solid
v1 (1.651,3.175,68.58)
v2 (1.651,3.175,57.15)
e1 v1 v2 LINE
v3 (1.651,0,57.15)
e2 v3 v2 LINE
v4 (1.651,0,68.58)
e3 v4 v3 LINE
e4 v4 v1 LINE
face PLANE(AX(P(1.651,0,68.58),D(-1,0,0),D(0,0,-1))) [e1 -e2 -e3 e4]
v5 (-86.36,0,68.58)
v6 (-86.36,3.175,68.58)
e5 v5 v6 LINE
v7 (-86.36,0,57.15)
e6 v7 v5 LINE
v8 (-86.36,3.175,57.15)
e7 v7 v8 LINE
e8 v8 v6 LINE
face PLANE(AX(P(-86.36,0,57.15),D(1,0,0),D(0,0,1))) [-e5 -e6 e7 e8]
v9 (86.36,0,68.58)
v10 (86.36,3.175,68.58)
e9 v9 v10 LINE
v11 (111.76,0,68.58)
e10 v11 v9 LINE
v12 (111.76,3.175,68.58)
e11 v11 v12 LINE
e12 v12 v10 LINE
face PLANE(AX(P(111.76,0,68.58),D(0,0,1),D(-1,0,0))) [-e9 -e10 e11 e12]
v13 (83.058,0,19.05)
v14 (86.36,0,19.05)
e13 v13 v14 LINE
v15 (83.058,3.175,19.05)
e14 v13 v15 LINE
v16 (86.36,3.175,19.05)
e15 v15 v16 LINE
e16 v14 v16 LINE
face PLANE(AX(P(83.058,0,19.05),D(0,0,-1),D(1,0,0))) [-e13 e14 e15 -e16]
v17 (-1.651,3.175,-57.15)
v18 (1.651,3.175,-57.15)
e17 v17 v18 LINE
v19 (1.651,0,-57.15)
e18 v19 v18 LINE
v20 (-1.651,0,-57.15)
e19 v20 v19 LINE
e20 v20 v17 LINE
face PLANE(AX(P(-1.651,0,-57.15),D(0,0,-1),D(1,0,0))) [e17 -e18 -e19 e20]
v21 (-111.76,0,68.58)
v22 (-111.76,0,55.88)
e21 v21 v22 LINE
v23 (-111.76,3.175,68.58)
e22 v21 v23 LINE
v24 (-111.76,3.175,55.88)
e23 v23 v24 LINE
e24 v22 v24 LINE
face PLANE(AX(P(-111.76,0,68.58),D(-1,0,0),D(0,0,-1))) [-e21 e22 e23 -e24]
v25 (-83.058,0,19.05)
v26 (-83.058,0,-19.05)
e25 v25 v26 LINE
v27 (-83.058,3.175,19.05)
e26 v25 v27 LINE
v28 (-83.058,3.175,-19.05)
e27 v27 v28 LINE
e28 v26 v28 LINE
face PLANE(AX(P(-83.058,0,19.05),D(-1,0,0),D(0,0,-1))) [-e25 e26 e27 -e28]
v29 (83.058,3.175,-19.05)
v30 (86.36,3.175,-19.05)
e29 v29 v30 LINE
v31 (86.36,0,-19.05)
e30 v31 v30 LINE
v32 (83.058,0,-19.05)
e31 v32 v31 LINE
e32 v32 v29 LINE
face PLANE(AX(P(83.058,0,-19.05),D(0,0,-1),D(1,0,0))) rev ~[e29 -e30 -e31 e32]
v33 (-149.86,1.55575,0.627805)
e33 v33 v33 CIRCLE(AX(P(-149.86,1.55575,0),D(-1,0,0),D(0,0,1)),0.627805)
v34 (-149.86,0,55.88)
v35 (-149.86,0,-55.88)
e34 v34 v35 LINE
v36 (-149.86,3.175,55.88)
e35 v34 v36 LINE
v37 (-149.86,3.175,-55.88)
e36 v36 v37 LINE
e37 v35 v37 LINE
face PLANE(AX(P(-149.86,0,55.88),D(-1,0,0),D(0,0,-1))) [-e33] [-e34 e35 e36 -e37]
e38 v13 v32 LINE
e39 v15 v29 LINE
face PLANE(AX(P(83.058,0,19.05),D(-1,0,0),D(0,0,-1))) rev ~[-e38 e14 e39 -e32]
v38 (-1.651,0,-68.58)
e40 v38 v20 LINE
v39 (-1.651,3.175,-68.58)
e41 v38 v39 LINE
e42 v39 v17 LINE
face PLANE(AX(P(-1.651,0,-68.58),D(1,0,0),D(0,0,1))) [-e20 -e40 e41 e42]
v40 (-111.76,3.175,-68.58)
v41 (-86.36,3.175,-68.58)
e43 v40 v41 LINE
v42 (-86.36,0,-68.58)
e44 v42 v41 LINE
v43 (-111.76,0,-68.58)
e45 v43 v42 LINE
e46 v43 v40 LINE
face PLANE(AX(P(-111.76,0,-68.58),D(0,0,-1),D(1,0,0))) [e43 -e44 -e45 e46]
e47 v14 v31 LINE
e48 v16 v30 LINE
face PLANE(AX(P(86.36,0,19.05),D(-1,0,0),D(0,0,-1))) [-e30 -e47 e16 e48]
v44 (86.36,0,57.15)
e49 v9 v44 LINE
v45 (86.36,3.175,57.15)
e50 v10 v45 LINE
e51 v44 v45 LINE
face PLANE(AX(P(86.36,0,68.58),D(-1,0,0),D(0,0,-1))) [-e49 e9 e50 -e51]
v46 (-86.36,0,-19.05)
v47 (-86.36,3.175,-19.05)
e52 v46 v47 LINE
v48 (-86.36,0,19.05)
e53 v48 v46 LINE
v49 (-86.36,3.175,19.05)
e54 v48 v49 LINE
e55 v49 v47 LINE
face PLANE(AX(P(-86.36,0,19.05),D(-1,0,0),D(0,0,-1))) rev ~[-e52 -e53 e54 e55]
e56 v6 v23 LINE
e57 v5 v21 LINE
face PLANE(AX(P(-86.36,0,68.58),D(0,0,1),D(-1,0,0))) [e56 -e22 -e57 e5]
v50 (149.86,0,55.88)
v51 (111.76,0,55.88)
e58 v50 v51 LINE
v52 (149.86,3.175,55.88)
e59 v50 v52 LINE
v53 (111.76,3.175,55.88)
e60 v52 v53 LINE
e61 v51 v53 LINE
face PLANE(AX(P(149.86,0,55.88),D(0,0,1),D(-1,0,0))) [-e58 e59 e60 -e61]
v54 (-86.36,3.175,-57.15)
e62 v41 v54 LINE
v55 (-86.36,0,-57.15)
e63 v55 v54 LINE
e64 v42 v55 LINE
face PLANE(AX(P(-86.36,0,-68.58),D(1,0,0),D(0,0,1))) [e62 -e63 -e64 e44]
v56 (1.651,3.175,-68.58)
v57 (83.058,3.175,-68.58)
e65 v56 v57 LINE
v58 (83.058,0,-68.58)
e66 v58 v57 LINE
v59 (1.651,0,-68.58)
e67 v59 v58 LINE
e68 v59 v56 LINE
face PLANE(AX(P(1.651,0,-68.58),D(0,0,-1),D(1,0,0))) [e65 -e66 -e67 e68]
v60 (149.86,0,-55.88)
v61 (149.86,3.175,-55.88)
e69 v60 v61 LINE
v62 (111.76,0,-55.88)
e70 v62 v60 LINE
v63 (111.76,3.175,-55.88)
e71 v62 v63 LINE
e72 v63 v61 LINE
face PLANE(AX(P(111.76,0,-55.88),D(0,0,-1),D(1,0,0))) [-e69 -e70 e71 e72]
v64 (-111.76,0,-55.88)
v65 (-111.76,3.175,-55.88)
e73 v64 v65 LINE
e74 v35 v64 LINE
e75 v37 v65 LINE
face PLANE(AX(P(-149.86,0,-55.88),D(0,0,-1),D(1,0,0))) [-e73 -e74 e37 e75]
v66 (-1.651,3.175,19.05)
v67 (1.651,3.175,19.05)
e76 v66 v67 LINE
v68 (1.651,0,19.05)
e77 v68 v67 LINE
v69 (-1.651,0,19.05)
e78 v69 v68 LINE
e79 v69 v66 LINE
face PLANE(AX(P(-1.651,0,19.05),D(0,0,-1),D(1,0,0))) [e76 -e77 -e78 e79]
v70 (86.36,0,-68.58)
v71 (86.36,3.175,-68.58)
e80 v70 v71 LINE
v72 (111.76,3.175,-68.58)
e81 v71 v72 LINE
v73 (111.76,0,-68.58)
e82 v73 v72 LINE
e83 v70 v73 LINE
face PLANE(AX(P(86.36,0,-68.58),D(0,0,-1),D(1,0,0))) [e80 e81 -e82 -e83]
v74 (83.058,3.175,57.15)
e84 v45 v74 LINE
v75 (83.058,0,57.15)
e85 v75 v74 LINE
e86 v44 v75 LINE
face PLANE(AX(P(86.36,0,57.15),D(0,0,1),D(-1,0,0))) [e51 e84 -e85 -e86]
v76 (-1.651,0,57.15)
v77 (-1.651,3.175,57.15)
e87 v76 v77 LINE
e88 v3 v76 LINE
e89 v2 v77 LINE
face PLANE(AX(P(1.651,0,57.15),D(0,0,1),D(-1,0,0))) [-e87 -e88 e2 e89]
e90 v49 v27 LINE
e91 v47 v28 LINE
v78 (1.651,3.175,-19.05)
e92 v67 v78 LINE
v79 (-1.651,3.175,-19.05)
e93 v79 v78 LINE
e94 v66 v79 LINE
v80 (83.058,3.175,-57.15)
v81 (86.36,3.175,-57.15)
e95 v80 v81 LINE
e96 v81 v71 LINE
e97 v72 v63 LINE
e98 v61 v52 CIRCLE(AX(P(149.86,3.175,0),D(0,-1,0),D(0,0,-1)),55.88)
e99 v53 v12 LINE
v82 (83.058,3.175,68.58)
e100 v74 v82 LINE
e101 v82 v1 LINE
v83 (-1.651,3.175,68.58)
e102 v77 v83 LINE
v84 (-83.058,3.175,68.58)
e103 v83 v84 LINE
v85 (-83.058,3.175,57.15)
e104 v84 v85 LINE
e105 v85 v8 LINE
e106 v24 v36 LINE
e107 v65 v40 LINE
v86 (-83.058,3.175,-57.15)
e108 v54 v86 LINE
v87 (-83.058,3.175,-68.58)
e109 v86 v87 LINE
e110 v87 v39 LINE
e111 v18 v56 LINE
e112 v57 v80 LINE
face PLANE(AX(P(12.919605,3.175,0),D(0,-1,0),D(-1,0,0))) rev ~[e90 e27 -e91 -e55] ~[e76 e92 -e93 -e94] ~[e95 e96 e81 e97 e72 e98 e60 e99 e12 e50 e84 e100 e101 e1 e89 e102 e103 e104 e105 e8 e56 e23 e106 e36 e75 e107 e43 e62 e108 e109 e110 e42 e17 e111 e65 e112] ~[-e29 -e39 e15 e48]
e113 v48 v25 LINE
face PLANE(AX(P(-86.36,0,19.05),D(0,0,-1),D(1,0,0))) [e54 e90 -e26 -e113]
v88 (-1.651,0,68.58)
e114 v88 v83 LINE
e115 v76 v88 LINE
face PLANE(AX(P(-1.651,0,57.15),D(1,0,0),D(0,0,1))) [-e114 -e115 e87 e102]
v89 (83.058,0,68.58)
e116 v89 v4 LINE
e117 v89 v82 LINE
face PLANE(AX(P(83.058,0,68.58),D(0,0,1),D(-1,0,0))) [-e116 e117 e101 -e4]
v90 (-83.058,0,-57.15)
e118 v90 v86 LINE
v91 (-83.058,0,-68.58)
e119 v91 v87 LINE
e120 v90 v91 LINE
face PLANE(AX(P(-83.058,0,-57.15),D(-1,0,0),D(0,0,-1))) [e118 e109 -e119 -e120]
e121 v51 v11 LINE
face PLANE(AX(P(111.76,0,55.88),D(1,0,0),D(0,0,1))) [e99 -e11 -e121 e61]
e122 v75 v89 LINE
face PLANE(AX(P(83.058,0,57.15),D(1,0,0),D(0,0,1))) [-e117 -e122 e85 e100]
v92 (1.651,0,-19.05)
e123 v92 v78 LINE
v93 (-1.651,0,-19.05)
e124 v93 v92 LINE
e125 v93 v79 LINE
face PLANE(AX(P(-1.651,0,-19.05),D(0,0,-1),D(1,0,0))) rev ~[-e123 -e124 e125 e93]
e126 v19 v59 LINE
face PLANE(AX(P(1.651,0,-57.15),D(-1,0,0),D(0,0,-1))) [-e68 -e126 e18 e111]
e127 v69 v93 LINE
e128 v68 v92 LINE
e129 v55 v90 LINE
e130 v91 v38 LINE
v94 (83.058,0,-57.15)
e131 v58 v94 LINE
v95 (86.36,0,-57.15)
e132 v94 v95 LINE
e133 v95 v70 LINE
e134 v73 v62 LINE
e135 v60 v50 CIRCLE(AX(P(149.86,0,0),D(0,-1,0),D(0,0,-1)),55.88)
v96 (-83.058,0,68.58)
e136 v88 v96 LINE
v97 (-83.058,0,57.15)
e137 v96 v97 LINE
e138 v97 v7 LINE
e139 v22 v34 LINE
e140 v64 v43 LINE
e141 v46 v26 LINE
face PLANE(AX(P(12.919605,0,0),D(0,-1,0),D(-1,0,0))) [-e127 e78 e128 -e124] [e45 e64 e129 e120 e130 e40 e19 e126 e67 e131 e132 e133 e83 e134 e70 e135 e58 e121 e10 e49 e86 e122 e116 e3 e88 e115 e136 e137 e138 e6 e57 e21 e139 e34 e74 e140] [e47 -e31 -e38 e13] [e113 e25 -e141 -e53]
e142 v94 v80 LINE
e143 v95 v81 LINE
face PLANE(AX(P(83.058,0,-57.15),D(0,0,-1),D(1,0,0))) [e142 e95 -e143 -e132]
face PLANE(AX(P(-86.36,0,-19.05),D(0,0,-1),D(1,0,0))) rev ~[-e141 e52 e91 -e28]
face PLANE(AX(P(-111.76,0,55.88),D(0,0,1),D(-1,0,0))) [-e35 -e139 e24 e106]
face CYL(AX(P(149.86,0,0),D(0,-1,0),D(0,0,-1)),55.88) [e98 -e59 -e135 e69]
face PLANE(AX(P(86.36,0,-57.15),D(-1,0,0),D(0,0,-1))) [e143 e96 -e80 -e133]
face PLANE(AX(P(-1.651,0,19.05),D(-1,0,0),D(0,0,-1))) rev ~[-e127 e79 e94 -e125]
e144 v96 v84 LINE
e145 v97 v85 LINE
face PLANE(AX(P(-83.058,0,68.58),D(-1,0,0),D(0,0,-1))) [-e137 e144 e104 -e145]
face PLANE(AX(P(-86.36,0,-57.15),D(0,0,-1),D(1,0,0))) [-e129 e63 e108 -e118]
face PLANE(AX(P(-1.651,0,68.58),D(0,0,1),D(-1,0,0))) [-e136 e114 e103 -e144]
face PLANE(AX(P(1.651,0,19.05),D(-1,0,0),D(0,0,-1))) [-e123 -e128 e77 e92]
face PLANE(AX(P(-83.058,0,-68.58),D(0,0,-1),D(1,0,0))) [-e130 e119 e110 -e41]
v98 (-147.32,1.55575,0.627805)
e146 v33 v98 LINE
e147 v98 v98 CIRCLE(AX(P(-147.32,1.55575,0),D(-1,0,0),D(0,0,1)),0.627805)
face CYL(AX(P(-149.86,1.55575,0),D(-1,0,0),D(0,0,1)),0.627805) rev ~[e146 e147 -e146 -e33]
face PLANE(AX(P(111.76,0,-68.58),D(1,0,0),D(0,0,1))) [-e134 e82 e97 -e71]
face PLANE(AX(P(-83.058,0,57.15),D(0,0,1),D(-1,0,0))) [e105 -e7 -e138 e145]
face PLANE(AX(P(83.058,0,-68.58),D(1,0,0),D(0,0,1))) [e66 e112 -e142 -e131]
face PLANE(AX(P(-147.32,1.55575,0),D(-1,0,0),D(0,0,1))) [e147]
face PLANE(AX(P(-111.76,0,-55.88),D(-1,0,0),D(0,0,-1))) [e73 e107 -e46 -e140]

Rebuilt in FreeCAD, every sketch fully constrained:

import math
import FreeCAD as App
import Part
import Sketcher

V = App.Vector
Q = App.Units.Quantity

doc = App.newDocument("Part")
body = doc.addObject("PartDesign::Body", "Body")

# Sketch on XZ plane
sketch1 = body.newObject("Sketcher::SketchObject", "Sketch")
sketch1.AttachmentSupport = (doc.getObject("XZ_Plane"), [""])
sketch1.MapMode = "FlatFace"
sketch1.addGeometry([
    Part.LineSegment(V(-149.9, -55.9, 0), V(-149.9, 55.9, 0)),  # 0
    Part.LineSegment(V(-149.9, 55.9, 0), V(-111.8, 55.9, 0)),  # 1
    Part.LineSegment(V(-111.8, 55.9, 0), V(-111.8, 68.6, 0)),  # 2
    Part.LineSegment(V(-111.8, 68.6, 0), V(-86.4, 68.6, 0)),  # 3
    Part.LineSegment(V(-86.4, 68.6, 0), V(-86.4, 57.1, 0)),  # 4
    Part.LineSegment(V(-86.4, 57.1, 0), V(-83.1, 57.1, 0)),  # 5
    Part.LineSegment(V(-83.1, 57.1, 0), V(-83.1, 68.6, 0)),  # 6
    Part.LineSegment(V(-83.1, 68.6, 0), V(-1.7, 68.6, 0)),  # 7
    Part.LineSegment(V(-1.7, 68.6, 0), V(-1.7, 57.1, 0)),  # 8
    Part.LineSegment(V(-1.7, 57.1, 0), V(1.7, 57.1, 0)),  # 9
    Part.LineSegment(V(1.7, 57.1, 0), V(1.7, 68.6, 0)),  # 10
    Part.LineSegment(V(1.7, 68.6, 0), V(83.1, 68.6, 0)),  # 11
    Part.LineSegment(V(83.1, 68.6, 0), V(83.1, 57.1, 0)),  # 12
    Part.LineSegment(V(83.1, 57.1, 0), V(86.4, 57.1, 0)),  # 13
    Part.LineSegment(V(86.4, 57.1, 0), V(86.4, 68.6, 0)),  # 14
    Part.LineSegment(V(86.4, 68.6, 0), V(111.8, 68.6, 0)),  # 15
    Part.LineSegment(V(111.8, 68.6, 0), V(111.8, 55.9, 0)),  # 16
    Part.LineSegment(V(111.8, 55.9, 0), V(149.9, 55.9, 0)),  # 17
    Part.ArcOfCircle(Part.Circle(V(149.9, 0, 0), V(0, 0, 1), 55.9), math.radians(-90), math.radians(90)),  # 18
    Part.LineSegment(V(149.9, -55.9, 0), V(111.8, -55.9, 0)),  # 19
    Part.LineSegment(V(111.8, -55.9, 0), V(111.8, -68.6, 0)),  # 20
    Part.LineSegment(V(111.8, -68.6, 0), V(86.4, -68.6, 0)),  # 21
    Part.LineSegment(V(86.4, -68.6, 0), V(86.4, -57.1, 0)),  # 22
    Part.LineSegment(V(86.4, -57.1, 0), V(83.1, -57.1, 0)),  # 23
    Part.LineSegment(V(83.1, -57.1, 0), V(83.1, -68.6, 0)),  # 24
    Part.LineSegment(V(83.1, -68.6, 0), V(1.7, -68.6, 0)),  # 25
    Part.LineSegment(V(1.7, -68.6, 0), V(1.7, -57.1, 0)),  # 26
    Part.LineSegment(V(1.7, -57.1, 0), V(-1.7, -57.1, 0)),  # 27
    Part.LineSegment(V(-1.7, -57.1, 0), V(-1.7, -68.6, 0)),  # 28
    Part.LineSegment(V(-1.7, -68.6, 0), V(-83.1, -68.6, 0)),  # 29
    Part.LineSegment(V(-83.1, -68.6, 0), V(-83.1, -57.1, 0)),  # 30
    Part.LineSegment(V(-83.1, -57.1, 0), V(-86.4, -57.1, 0)),  # 31
    Part.LineSegment(V(-86.4, -57.1, 0), V(-86.4, -68.6, 0)),  # 32
    Part.LineSegment(V(-86.4, -68.6, 0), V(-111.8, -68.6, 0)),  # 33
    Part.LineSegment(V(-111.8, -68.6, 0), V(-111.8, -55.9, 0)),  # 34
    Part.LineSegment(V(-111.8, -55.9, 0), V(-149.9, -55.9, 0)),  # 35
    Part.LineSegment(V(83.1, 19.1, 0), V(83.1, -19.1, 0)),  # 36
    Part.LineSegment(V(83.1, -19.1, 0), V(86.4, -19.1, 0)),  # 37
    Part.LineSegment(V(86.4, -19.1, 0), V(86.4, 19.1, 0)),  # 38
    Part.LineSegment(V(86.4, 19.1, 0), V(83.1, 19.1, 0)),  # 39
    Part.LineSegment(V(-1.7, 19.1, 0), V(-1.7, -19.1, 0)),  # 40
    Part.LineSegment(V(-1.7, -19.1, 0), V(1.7, -19.1, 0)),  # 41
    Part.LineSegment(V(1.7, -19.1, 0), V(1.7, 19.1, 0)),  # 42
    Part.LineSegment(V(1.7, 19.1, 0), V(-1.7, 19.1, 0)),  # 43
    Part.LineSegment(V(-86.4, 19.1, 0), V(-86.4, -19.1, 0)),  # 44
    Part.LineSegment(V(-86.4, -19.1, 0), V(-83.1, -19.1, 0)),  # 45
    Part.LineSegment(V(-83.1, -19.1, 0), V(-83.1, 19.1, 0)),  # 46
    Part.LineSegment(V(-83.1, 19.1, 0), V(-86.4, 19.1, 0)),  # 47
], False)
sketch1.addConstraint([
    Sketcher.Constraint("Coincident", 0, 2, 1, 1),
    Sketcher.Constraint("Coincident", 1, 2, 2, 1),
    Sketcher.Constraint("Coincident", 2, 2, 3, 1),
    Sketcher.Constraint("Coincident", 3, 2, 4, 1),
    Sketcher.Constraint("Coincident", 4, 2, 5, 1),
    Sketcher.Constraint("Coincident", 5, 2, 6, 1),
    Sketcher.Constraint("Coincident", 6, 2, 7, 1),
    Sketcher.Constraint("Coincident", 7, 2, 8, 1),
    Sketcher.Constraint("Coincident", 8, 2, 9, 1),
    Sketcher.Constraint("Coincident", 9, 2, 10, 1),
    Sketcher.Constraint("Coincident", 10, 2, 11, 1),
    Sketcher.Constraint("Coincident", 11, 2, 12, 1),
    Sketcher.Constraint("Coincident", 12, 2, 13, 1),
    Sketcher.Constraint("Coincident", 13, 2, 14, 1),
    Sketcher.Constraint("Coincident", 14, 2, 15, 1),
    Sketcher.Constraint("Coincident", 15, 2, 16, 1),
    Sketcher.Constraint("Coincident", 16, 2, 17, 1),
    Sketcher.Constraint("Tangent", 17, 2, 18, 2),
    Sketcher.Constraint("Tangent", 18, 1, 19, 1),
    Sketcher.Constraint("Coincident", 19, 2, 20, 1),
    Sketcher.Constraint("Coincident", 20, 2, 21, 1),
    Sketcher.Constraint("Coincident", 21, 2, 22, 1),
    Sketcher.Constraint("Coincident", 22, 2, 23, 1),
    Sketcher.Constraint("Coincident", 23, 2, 24, 1),
    Sketcher.Constraint("Coincident", 24, 2, 25, 1),
    Sketcher.Constraint("Coincident", 25, 2, 26, 1),
    Sketcher.Constraint("Coincident", 26, 2, 27, 1),
    Sketcher.Constraint("Coincident", 27, 2, 28, 1),
    Sketcher.Constraint("Coincident", 28, 2, 29, 1),
    Sketcher.Constraint("Coincident", 29, 2, 30, 1),
    Sketcher.Constraint("Coincident", 30, 2, 31, 1),
    Sketcher.Constraint("Coincident", 31, 2, 32, 1),
    Sketcher.Constraint("Coincident", 32, 2, 33, 1),
    Sketcher.Constraint("Coincident", 33, 2, 34, 1),
    Sketcher.Constraint("Coincident", 34, 2, 35, 1),
    Sketcher.Constraint("Coincident", 35, 2, 0, 1),
    Sketcher.Constraint("Coincident", 36, 2, 37, 1),
    Sketcher.Constraint("Coincident", 37, 2, 38, 1),
    Sketcher.Constraint("Coincident", 38, 2, 39, 1),
    Sketcher.Constraint("Coincident", 39, 2, 36, 1),
    Sketcher.Constraint("Coincident", 40, 2, 41, 1),
    Sketcher.Constraint("Coincident", 41, 2, 42, 1),
    Sketcher.Constraint("Coincident", 42, 2, 43, 1),
    Sketcher.Constraint("Coincident", 43, 2, 40, 1),
    Sketcher.Constraint("Coincident", 44, 2, 45, 1),
    Sketcher.Constraint("Coincident", 45, 2, 46, 1),
    Sketcher.Constraint("Coincident", 46, 2, 47, 1),
    Sketcher.Constraint("Coincident", 47, 2, 44, 1),
    Sketcher.Constraint("Vertical", 0),
    Sketcher.Constraint("Horizontal", 1),
    Sketcher.Constraint("Vertical", 2),
    Sketcher.Constraint("Horizontal", 3),
    Sketcher.Constraint("Vertical", 4),
    Sketcher.Constraint("Horizontal", 5),
    Sketcher.Constraint("Vertical", 6),
    Sketcher.Constraint("Horizontal", 7),
    Sketcher.Constraint("Vertical", 8),
    Sketcher.Constraint("Horizontal", 9),
    Sketcher.Constraint("Vertical", 10),
    Sketcher.Constraint("Horizontal", 11),
    Sketcher.Constraint("Vertical", 12),
    Sketcher.Constraint("Horizontal", 13),
    Sketcher.Constraint("Vertical", 14),
    Sketcher.Constraint("Horizontal", 15),
    Sketcher.Constraint("Vertical", 16),
    Sketcher.Constraint("Horizontal", 17),
    Sketcher.Constraint("Horizontal", 19),
    Sketcher.Constraint("Vertical", 20),
    Sketcher.Constraint("Horizontal", 21),
    Sketcher.Constraint("Vertical", 22),
    Sketcher.Constraint("Horizontal", 23),
    Sketcher.Constraint("Vertical", 24),
    Sketcher.Constraint("Horizontal", 25),
    Sketcher.Constraint("Vertical", 26),
    Sketcher.Constraint("Horizontal", 27),
    Sketcher.Constraint("Vertical", 28),
    Sketcher.Constraint("Horizontal", 29),
    Sketcher.Constraint("Vertical", 30),
    Sketcher.Constraint("Horizontal", 31),
    Sketcher.Constraint("Vertical", 32),
    Sketcher.Constraint("Horizontal", 33),
    Sketcher.Constraint("Vertical", 34),
    Sketcher.Constraint("Horizontal", 35),
    Sketcher.Constraint("Vertical", 36),
    Sketcher.Constraint("Horizontal", 37),
    Sketcher.Constraint("Vertical", 38),
    Sketcher.Constraint("Horizontal", 39),
    Sketcher.Constraint("Vertical", 40),
    Sketcher.Constraint("Horizontal", 41),
    Sketcher.Constraint("Vertical", 42),
    Sketcher.Constraint("Horizontal", 43),
    Sketcher.Constraint("Vertical", 44),
    Sketcher.Constraint("Horizontal", 45),
    Sketcher.Constraint("Vertical", 46),
    Sketcher.Constraint("Horizontal", 47),
    Sketcher.Constraint("Symmetric", 0, 2, 18, 1, -1, 1),
    Sketcher.Constraint("Symmetric", 2, 2, 20, 2, -1, 1),
    Sketcher.Constraint("Symmetric", 4, 2, 22, 2, -1, 1),
    Sketcher.Constraint("Symmetric", 6, 2, 24, 2, -1, 1),
    Sketcher.Constraint("Symmetric", 8, 2, 26, 2, -1, 1),
    Sketcher.Constraint("Symmetric", 10, 2, 28, 2, -1, 1),
    Sketcher.Constraint("Symmetric", 12, 2, 30, 2, -1, 1),
    Sketcher.Constraint("Symmetric", 14, 2, 32, 2, -1, 1),
    Sketcher.Constraint("Symmetric", 16, 2, 34, 2, -1, 1),
    Sketcher.Constraint("Symmetric", 40, 2, 42, 2, -1, 1),
    Sketcher.Constraint("Symmetric", 38, 2, 44, 2, -1, 1),
    Sketcher.Constraint("Symmetric", 36, 2, 46, 2, -1, 1),
    Sketcher.Constraint("Symmetric", 7, 2, 10, 2, -2),
    Sketcher.Constraint("Symmetric", 5, 2, 12, 2, -2),
    Sketcher.Constraint("Symmetric", 3, 2, 14, 2, -2),
    Sketcher.Constraint("Symmetric", 1, 2, 16, 2, -2),
    Sketcher.Constraint("Horizontal", 3, 2, 6, 2),
    Sketcher.Constraint("Horizontal", 5, 2, 8, 2),
    Sketcher.Constraint("Horizontal", 37, 2, 40, 2),
    Sketcher.Constraint("Horizontal", 39, 2, 42, 2),
    Sketcher.Constraint("Vertical", 24, 2, 36, 2),
    Sketcher.Constraint("Vertical", 22, 2, 37, 2),
    Sketcher.Constraint("Vertical", 28, 2, 40, 2),
    Sketcher.Constraint("Equal", 5, 9),
    Sketcher.Constraint("Equal", 35, 36),
    Sketcher.Constraint("Radius", 18, Q("2.2 in")),
    Sketcher.Constraint("DistanceX", 3, 1, 3, 2, Q("1 in")),
    Sketcher.Constraint("DistanceX", 1, 1, 1, 2, Q("1.5 in")),
    Sketcher.Constraint("DistanceY", 2, 1, 2, 2, Q("0.5 in")),
    Sketcher.Constraint("DistanceY", 40, 2, 8, 2, Q("3 in")),
    Sketcher.Constraint("DistanceX", 5, 1, 5, 2, Q("0.13 in")),
    Sketcher.Constraint("DistanceX", -1, 1, 18, 3, Q("5.9 in")),
])
pad1 = body.newObject("PartDesign::Pad", "Pad")
pad1.Profile = sketch1
pad1.Length = Q("0.125 in")
pad1.Reversed = True

# Sketch on YZ plane
sketch2 = body.newObject("Sketcher::SketchObject", "Sketch001")
sketch2.AttachmentSupport = (doc.getObject("YZ_Plane"), [""])
sketch2.MapMode = "FlatFace"
sketch2.AttachmentOffset = App.Placement(V(0, 0, -5.9 * 25.4), App.Rotation())
sketch2.addGeometry(Part.Circle(V(1.6, 0, 0), V(0, 0, 1), 0.6), False)
sketch2.addConstraint([
    Sketcher.Constraint("PointOnObject", 0, 3, -1),
    Sketcher.Constraint("Diameter", 0, 1.255609),
    Sketcher.Constraint("DistanceX", -1, 1, 0, 3, 1.55575),
])
pocket1 = body.newObject("PartDesign::Pocket", "Pocket")
pocket1.Profile = sketch2
pocket1.Length = Q("0.1 in")
pocket1.Reversed = True

doc.recompute()
